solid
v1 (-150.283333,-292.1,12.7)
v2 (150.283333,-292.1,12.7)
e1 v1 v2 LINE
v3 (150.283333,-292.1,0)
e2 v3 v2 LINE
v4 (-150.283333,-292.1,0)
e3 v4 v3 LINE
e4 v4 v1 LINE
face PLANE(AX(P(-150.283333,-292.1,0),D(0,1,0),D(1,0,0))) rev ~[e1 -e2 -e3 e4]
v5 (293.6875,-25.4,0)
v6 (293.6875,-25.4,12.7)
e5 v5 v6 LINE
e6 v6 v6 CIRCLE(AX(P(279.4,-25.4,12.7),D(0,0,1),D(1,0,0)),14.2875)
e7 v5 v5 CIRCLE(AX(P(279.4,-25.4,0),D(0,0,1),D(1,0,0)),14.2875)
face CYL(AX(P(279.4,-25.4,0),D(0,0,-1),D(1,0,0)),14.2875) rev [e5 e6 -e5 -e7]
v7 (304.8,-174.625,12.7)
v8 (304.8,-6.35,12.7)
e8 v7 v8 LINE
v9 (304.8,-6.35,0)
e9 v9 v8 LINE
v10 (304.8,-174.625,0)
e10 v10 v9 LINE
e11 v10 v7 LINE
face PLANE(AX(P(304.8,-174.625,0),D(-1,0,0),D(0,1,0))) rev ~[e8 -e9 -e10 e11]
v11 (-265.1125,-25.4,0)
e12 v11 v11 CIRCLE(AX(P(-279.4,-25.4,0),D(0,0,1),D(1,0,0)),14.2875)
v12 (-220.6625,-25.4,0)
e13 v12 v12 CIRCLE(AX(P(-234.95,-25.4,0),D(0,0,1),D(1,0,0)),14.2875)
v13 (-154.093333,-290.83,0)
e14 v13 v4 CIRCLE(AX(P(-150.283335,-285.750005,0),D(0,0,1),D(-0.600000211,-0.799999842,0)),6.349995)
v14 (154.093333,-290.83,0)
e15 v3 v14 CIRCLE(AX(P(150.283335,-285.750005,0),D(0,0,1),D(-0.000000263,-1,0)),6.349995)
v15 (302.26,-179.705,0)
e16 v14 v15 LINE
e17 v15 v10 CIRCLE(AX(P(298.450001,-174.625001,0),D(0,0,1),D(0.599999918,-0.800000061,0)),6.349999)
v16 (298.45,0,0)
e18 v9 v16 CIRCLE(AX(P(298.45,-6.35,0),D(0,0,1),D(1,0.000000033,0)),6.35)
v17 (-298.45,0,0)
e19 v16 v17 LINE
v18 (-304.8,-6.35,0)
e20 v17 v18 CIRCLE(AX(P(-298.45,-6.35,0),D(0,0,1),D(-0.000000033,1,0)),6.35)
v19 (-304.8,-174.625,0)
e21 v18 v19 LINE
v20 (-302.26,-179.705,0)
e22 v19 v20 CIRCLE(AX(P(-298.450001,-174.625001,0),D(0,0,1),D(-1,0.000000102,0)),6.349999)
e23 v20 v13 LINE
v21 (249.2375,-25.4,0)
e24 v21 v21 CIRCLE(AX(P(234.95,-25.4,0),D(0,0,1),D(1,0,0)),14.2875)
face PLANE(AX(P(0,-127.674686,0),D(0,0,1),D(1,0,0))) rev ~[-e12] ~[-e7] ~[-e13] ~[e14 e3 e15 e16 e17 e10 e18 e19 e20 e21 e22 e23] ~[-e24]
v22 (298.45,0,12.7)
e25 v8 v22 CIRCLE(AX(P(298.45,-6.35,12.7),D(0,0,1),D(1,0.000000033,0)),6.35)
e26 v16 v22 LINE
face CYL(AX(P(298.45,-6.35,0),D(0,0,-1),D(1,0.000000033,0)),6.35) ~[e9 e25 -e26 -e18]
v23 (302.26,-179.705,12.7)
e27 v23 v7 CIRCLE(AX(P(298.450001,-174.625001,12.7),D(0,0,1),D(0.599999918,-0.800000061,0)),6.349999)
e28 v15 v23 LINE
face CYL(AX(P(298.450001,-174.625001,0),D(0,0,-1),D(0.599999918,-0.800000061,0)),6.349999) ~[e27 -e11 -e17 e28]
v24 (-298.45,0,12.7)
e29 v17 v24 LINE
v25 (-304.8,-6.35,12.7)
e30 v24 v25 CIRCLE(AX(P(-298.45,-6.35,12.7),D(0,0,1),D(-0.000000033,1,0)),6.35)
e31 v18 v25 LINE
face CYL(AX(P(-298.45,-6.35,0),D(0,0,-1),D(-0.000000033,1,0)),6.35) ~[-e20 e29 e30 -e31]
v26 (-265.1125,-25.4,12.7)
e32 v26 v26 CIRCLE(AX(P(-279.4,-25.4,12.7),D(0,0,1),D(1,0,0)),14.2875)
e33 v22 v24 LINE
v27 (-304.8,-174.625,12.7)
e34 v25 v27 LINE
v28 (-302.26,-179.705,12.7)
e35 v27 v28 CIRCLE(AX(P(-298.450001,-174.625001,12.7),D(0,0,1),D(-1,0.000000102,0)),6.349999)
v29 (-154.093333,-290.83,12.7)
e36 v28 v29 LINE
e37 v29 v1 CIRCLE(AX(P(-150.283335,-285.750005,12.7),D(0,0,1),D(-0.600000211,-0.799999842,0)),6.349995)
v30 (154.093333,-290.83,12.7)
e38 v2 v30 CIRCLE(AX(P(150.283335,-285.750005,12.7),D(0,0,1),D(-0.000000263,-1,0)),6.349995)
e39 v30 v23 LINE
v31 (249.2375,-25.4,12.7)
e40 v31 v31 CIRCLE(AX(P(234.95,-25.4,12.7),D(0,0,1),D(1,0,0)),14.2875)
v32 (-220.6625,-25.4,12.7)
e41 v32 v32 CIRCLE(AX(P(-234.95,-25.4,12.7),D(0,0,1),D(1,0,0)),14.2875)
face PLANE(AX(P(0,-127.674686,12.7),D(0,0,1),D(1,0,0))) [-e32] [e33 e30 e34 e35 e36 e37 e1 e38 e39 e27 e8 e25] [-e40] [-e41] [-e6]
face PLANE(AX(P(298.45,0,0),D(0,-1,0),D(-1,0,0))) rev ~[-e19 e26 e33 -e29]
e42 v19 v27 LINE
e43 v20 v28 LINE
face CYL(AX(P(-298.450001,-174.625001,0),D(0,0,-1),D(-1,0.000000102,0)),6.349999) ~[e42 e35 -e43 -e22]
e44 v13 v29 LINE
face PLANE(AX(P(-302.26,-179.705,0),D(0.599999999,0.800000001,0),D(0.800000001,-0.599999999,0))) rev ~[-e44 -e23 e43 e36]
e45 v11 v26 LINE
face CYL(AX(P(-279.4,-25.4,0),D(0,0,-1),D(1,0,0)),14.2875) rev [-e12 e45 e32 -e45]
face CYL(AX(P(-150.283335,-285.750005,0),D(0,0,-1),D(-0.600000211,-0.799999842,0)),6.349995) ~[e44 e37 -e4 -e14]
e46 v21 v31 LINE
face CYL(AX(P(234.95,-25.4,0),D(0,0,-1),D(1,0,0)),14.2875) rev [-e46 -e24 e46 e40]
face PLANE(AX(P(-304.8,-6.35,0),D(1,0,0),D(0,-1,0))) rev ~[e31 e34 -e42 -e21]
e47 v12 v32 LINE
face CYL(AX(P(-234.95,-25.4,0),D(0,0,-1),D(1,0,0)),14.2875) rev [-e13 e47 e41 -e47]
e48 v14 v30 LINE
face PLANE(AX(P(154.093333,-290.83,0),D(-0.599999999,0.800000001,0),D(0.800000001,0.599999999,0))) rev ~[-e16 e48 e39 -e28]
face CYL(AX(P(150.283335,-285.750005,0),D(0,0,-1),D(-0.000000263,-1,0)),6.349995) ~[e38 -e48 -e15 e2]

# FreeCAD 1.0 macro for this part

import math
import FreeCAD as App
import Part
import Sketcher
from FreeCAD import Vector
Q = App.Units.Quantity

doc = App.newDocument("Part")
body = doc.addObject("PartDesign::Body", "Body")

sketch1 = body.newObject("Sketcher::SketchObject", "Sketch")
sketch1.AttachmentSupport = (doc.getObject("XY_Plane"), [""])
sketch1.MapMode = "FlatFace"
sketch1.addGeometry([
    Part.ArcOfCircle(Part.Circle(Vector(-298.45, -6.35, 0), Vector(0, 0, 1), 6.35), math.radians(90.000002), math.radians(179.999998)),
    Part.LineSegment(Vector(-304.8, -6.35, 0), Vector(-304.8, -174.625, 0)),
    Part.ArcOfCircle(Part.Circle(Vector(-298.450001, -174.625001, 0), Vector(0, 0, 1), 6.349999), math.radians(179.999994), math.radians(233.130108)),
    Part.LineSegment(Vector(-302.26, -179.705, 0), Vector(-154.093333, -290.83, 0)),
    Part.ArcOfCircle(Part.Circle(Vector(-150.283335, -285.750005, 0), Vector(0, 0, 1), 6.349995), math.radians(-126.869913), math.radians(-89.999985)),
    Part.LineSegment(Vector(-150.283333, -292.1, 0), Vector(150.283333, -292.1, 0)),
    Part.ArcOfCircle(Part.Circle(Vector(150.283335, -285.750005, 0), Vector(0, 0, 1), 6.349995), math.radians(-90.000015), math.radians(-53.130087)),
    Part.LineSegment(Vector(154.093333, -290.83, 0), Vector(302.26, -179.705, 0)),
    Part.ArcOfCircle(Part.Circle(Vector(298.450001, -174.625001, 0), Vector(0, 0, 1), 6.349999), math.radians(-53.130108), math.radians(0.000006)),
    Part.LineSegment(Vector(304.8, -174.625, 0), Vector(304.8, -6.35, 0)),
    Part.ArcOfCircle(Part.Circle(Vector(298.45, -6.35, 0), Vector(0, 0, 1), 6.35), math.radians(0.000002), math.radians(89.999998)),
    Part.LineSegment(Vector(298.45, 0, 0), Vector(-298.45, 0, 0)),
    Part.Circle(Vector(-279.4, -25.4, 0), Vector(0, 0, 1), 14.2875),
    Part.Circle(Vector(-234.95, -25.4, 0), Vector(0, 0, 1), 14.2875),
    Part.Circle(Vector(234.95, -25.4, 0), Vector(0, 0, 1), 14.2875),
    Part.Circle(Vector(279.4, -25.4, 0), Vector(0, 0, 1), 14.2875),
], False)
sketch1.addConstraint([
    Sketcher.Constraint("Tangent", 0, 2, 1, 1),
    Sketcher.Constraint("Tangent", 1, 2, 2, 1),
    Sketcher.Constraint("Tangent", 2, 2, 3, 1),
    Sketcher.Constraint("Tangent", 3, 2, 4, 1),
    Sketcher.Constraint("Tangent", 4, 2, 5, 1),
    Sketcher.Constraint("Tangent", 5, 2, 6, 1),
    Sketcher.Constraint("Tangent", 6, 2, 7, 1),
    Sketcher.Constraint("Tangent", 7, 2, 8, 1),
    Sketcher.Constraint("Tangent", 8, 2, 9, 1),
    Sketcher.Constraint("Tangent", 9, 2, 10, 1),
    Sketcher.Constraint("Tangent", 10, 2, 11, 1),
    Sketcher.Constraint("Tangent", 11, 2, 0, 1),
    Sketcher.Constraint("Vertical", 1),
    Sketcher.Constraint("Horizontal", 5),
    Sketcher.Constraint("Vertical", 9),
    Sketcher.Constraint("Horizontal", 11),
    Sketcher.Constraint("Equal", 0, 2),
    Sketcher.Constraint("Equal", 4, 6),
    Sketcher.Constraint("Equal", 2, 8),
    Sketcher.Constraint("Equal", 8, 10),
    Sketcher.Constraint("Equal", 12, 13),
    Sketcher.Constraint("Equal", 13, 14),
    Sketcher.Constraint("Equal", 14, 15),
    Sketcher.Constraint("Symmetric", 10, 2, 11, 2, -1, 1),
    Sketcher.Constraint("Symmetric", 13, 3, 14, 3, -2),
    Sketcher.Constraint("Symmetric", 12, 3, 15, 3, -2),
    Sketcher.Constraint("Symmetric", 3, 2, 6, 2, -2),
    Sketcher.Constraint("Horizontal", 12, 3, 13, 3),
    Sketcher.Constraint("Radius", 0, Q("0.25 in")),
    Sketcher.Constraint("Radius", 4, Q("0.2499998 in")),
    Sketcher.Constraint("Diameter", 12, Q("1.125 in")),
    Sketcher.Constraint("DistanceX", 11, 2, 11, 1, Q("23.5 in")),
    Sketcher.Constraint("DistanceX", 12, 3, -1, 1, Q("11 in")),
    Sketcher.Constraint("DistanceY", 12, 3, -1, 1, Q("1 in")),
    Sketcher.Constraint("DistanceY", 4, 3, 0, 3, Q("11.0000002 in")),
    Sketcher.Constraint("DistanceX", 2, 2, -1, 1, Q("11.9 in")),
    Sketcher.Constraint("DistanceX", 0, 3, 13, 3, Q("2.5 in")),
    Sketcher.Constraint("DistanceY", 1, 2, 1, 1, Q("6.625 in")),
])
pad1 = body.newObject("PartDesign::Pad", "Pad")
pad1.Profile = sketch1
pad1.Length = Q("0.5 in")

doc.recompute()
